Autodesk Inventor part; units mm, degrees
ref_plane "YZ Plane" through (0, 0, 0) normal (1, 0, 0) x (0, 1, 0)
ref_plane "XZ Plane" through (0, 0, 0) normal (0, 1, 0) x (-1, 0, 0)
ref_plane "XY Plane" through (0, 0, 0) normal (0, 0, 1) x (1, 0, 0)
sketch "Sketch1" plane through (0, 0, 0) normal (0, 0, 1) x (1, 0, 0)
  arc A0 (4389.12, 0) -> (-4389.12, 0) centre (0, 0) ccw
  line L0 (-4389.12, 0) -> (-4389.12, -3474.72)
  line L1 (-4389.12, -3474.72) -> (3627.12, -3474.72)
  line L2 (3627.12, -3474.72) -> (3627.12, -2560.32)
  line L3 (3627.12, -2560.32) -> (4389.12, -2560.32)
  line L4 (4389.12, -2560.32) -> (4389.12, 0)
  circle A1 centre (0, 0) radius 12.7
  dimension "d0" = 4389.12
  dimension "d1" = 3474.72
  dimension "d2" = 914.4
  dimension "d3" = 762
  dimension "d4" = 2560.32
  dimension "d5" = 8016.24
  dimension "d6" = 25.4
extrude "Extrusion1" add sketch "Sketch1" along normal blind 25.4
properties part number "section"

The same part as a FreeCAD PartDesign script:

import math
import FreeCAD as App
import Part
import Sketcher
from FreeCAD import Vector
Q = App.Units.Quantity

doc = App.newDocument("Part")
body = doc.addObject("PartDesign::Body", "Body")

sketch1 = doc.addObject("Sketcher::SketchObject", "Sketch")
body.addObject(sketch1)
sketch1.AttachmentSupport = (doc.XY_Plane, [""])
sketch1.MapMode = "FlatFace"
sketch1.addGeometry([
    Part.LineSegment(Vector(4389.12, -2560.32, 0), Vector(4389.12, 0, 0)),
    Part.ArcOfCircle(Part.Circle(Vector(0, 0, 0), Vector(0, 0, 1), 4389.12), math.radians(0), math.radians(180)),
    Part.LineSegment(Vector(-4389.12, 0, 0), Vector(-4389.12, -3474.72, 0)),
    Part.LineSegment(Vector(-4389.12, -3474.72, 0), Vector(3627.12, -3474.72, 0)),
    Part.LineSegment(Vector(3627.12, -3474.72, 0), Vector(3627.12, -2560.32, 0)),
    Part.LineSegment(Vector(3627.12, -2560.32, 0), Vector(4389.12, -2560.32, 0)),
    Part.Circle(Vector(0, 0, 0), Vector(0, 0, 1), 12.7),
], False)
sketch1.addConstraint([
    Sketcher.Constraint("Coincident", 0, 2, 1, 1),
    Sketcher.Constraint("Coincident", 1, 2, 2, 1),
    Sketcher.Constraint("Coincident", 2, 2, 3, 1),
    Sketcher.Constraint("Coincident", 3, 2, 4, 1),
    Sketcher.Constraint("Coincident", 4, 2, 5, 1),
    Sketcher.Constraint("Coincident", 5, 2, 0, 1),
    Sketcher.Constraint("Vertical", 0),
    Sketcher.Constraint("Vertical", 2),
    Sketcher.Constraint("Horizontal", 3),
    Sketcher.Constraint("Vertical", 4),
    Sketcher.Constraint("Horizontal", 5),
    Sketcher.Constraint("Coincident", 1, 3, -1, 1),
    Sketcher.Constraint("Coincident", 6, 3, -1, 1),
    Sketcher.Constraint("PointOnObject", 0, 2, -1),
    Sketcher.Constraint("Diameter", 6, Q("1 in")),
    Sketcher.Constraint("Radius", 1, Q("172.8 in")),
    Sketcher.Constraint("DistanceX", 5, 1, 5, 2, Q("30 in")),
    Sketcher.Constraint("DistanceY", 4, 1, 4, 2, Q("36 in")),
    Sketcher.Constraint("DistanceY", 0, 1, 0, 2, Q("100.8 in")),
    Sketcher.Constraint("DistanceY", 2, 2, 2, 1, Q("136.8 in")),
])
pad1 = doc.addObject("PartDesign::Pad", "Pad")
body.addObject(pad1)
pad1.Profile = sketch1
pad1.Length = Q("1 in")

doc.recompute()
